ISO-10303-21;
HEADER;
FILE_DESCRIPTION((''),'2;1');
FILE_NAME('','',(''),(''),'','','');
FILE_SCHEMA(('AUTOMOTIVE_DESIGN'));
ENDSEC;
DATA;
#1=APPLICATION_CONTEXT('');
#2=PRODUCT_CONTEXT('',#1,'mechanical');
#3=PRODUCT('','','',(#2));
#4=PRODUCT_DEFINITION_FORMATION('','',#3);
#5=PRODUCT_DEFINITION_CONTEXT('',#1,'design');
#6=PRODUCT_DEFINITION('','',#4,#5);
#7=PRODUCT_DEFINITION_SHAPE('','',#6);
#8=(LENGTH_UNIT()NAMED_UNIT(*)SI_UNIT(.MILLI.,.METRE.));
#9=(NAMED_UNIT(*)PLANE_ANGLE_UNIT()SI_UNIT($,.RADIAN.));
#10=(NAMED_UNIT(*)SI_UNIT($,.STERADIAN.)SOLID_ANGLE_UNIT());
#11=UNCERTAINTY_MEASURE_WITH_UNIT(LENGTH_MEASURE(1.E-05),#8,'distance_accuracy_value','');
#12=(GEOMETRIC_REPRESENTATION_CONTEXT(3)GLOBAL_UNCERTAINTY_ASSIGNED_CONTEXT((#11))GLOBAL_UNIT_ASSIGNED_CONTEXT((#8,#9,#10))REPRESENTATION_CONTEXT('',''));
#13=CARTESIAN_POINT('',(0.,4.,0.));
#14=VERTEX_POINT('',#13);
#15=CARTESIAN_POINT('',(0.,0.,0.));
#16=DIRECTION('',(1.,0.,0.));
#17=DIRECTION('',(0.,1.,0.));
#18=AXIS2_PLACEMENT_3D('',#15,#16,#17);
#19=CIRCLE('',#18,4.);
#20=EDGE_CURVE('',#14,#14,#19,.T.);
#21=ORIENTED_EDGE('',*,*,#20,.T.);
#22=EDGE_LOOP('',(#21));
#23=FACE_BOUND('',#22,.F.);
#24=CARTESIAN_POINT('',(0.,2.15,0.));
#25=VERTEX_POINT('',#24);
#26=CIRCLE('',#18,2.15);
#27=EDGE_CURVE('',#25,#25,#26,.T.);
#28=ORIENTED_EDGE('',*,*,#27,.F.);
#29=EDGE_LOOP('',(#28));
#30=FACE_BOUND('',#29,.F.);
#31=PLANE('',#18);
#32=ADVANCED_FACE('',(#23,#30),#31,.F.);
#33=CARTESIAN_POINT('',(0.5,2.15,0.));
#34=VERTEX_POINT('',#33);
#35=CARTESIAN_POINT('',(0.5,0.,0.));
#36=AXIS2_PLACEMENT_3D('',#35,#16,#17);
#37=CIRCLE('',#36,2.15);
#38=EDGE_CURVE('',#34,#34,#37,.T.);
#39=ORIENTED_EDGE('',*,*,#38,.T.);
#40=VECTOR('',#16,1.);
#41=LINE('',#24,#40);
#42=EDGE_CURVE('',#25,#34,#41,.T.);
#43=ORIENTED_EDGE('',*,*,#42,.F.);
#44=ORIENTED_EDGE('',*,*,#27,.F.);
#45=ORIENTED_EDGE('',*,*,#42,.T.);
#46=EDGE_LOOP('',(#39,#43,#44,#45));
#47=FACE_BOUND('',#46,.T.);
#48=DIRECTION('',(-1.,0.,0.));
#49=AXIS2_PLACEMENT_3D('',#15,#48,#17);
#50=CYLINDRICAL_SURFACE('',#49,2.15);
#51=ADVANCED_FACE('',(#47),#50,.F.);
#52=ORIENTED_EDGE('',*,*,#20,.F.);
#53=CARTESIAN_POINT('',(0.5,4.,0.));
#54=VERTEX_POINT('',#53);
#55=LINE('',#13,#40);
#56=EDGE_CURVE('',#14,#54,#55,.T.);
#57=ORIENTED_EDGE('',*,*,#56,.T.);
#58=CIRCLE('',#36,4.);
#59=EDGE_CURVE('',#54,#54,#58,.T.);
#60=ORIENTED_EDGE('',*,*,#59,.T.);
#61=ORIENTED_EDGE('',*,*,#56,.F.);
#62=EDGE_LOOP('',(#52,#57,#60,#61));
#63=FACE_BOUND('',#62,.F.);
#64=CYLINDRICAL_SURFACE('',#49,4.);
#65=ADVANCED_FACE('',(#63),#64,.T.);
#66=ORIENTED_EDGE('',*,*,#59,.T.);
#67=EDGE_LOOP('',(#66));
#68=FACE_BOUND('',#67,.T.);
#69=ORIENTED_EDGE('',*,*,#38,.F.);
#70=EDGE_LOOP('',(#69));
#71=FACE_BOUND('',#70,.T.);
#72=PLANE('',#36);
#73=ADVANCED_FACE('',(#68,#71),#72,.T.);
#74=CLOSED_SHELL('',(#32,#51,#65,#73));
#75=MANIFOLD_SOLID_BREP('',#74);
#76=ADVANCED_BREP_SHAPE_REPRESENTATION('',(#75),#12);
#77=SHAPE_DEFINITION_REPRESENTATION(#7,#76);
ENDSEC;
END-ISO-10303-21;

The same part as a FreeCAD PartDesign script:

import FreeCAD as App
import Part
import Sketcher

doc = App.newDocument("Part")
body = doc.addObject("PartDesign::Body", "Body")

# Sketch on YZ plane
sketch1 = body.newObject("Sketcher::SketchObject", "Sketch")
sketch1.AttachmentSupport = (doc.getObject("YZ_Plane"), [""])
sketch1.MapMode = "FlatFace"
sketch1.addGeometry(Part.Circle(App.Vector(0, 0, 0), App.Vector(0, 0, 1), 4), False)
sketch1.addGeometry(Part.Circle(App.Vector(0, 0, 0), App.Vector(0, 0, 1), 2.1), False)
sketch1.addConstraint(Sketcher.Constraint("Coincident", 0, 3, -1, 1))
sketch1.addConstraint(Sketcher.Constraint("Coincident", 1, 3, -1, 1))
sketch1.addConstraint(Sketcher.Constraint("Diameter", 0, 8.0))
sketch1.addConstraint(Sketcher.Constraint("Diameter", 1, 4.3))
pad1 = body.newObject("PartDesign::Pad", "Pad")
pad1.Profile = sketch1
pad1.Length = 0.5

doc.recompute()
